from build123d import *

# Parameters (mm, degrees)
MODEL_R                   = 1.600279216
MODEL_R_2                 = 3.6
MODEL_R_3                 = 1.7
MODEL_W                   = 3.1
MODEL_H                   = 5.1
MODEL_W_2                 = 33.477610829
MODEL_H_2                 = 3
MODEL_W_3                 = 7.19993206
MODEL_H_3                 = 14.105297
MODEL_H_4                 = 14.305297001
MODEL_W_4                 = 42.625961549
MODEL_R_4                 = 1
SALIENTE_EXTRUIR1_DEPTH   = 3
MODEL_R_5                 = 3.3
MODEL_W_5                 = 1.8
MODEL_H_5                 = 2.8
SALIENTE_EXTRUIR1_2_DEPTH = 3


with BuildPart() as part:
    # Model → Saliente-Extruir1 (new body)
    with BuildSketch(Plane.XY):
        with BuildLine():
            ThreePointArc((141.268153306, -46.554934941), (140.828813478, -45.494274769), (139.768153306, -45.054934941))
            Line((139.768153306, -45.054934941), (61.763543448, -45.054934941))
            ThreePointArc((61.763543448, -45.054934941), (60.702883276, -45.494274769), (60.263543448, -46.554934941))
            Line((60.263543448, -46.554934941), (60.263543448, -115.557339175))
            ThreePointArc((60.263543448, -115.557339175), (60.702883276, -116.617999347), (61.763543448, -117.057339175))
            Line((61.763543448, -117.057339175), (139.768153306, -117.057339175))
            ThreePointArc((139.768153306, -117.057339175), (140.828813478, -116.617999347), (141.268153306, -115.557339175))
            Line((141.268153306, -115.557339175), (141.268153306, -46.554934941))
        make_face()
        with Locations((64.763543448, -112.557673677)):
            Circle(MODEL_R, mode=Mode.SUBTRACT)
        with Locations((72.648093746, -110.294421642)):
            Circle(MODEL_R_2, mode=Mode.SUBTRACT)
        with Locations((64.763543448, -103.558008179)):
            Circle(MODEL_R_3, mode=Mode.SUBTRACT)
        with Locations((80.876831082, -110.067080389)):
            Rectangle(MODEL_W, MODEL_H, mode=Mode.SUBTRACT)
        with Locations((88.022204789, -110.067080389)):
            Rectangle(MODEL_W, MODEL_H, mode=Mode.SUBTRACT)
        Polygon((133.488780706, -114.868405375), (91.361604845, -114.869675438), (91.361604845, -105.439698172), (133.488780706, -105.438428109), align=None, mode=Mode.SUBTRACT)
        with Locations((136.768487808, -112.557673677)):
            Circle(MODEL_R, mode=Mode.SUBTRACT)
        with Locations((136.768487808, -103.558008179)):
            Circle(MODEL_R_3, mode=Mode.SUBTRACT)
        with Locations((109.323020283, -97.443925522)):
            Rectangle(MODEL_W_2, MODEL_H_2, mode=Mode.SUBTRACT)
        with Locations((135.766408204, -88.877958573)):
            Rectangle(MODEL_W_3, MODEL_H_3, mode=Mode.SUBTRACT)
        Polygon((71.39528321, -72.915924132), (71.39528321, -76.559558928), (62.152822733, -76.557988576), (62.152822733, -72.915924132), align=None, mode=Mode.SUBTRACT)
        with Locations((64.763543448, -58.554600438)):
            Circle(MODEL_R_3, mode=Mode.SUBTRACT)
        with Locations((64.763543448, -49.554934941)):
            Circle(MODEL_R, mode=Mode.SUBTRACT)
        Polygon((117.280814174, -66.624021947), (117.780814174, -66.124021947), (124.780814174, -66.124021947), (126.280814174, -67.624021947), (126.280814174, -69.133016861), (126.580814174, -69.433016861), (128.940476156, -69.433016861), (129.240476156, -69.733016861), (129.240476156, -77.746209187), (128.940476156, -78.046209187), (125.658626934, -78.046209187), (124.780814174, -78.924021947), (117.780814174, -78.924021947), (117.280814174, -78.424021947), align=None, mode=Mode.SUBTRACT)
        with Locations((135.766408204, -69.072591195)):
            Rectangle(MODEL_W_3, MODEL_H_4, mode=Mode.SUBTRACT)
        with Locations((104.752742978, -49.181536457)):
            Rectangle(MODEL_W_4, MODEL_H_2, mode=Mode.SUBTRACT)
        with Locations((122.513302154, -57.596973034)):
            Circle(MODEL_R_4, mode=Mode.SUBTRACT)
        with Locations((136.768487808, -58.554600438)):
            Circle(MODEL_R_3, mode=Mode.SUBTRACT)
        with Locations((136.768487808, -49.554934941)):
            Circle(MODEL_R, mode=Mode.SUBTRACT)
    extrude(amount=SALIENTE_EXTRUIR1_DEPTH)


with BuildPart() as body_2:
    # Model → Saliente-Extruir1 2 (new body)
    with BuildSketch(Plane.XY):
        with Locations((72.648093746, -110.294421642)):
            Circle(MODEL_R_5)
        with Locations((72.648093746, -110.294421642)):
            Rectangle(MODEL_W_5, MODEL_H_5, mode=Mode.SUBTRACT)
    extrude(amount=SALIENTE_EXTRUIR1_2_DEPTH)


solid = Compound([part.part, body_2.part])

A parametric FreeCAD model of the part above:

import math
import FreeCAD as App
import Part
import Sketcher

V = App.Vector


def add_polygon(sketch, points):
    """Adds a closed chain of lines whose ends are joined by coincident constraints."""
    first, n = sketch.GeometryCount, len(points)
    for a, b in zip(points, points[1:] + points[:1]):
        sketch.addGeometry(Part.LineSegment(App.Vector(*a, 0), App.Vector(*b, 0)), False)
    for i in range(n):
        sketch.addConstraint(Sketcher.Constraint("Coincident", first + i, 2, first + (i + 1) % n, 1))

doc = App.newDocument("Part")
params = doc.addObject("Spreadsheet::Sheet", "Params")
for row, (alias, value) in enumerate([
    ("sketch1_diameter", "2 mm"),
    ("sketch1_diameter2", "7.2 mm"),
    ("sketch1_diameter3", "3.4 mm"),
    ("sketch1_radius", "1.5 mm"),
    ("sketch1_width", "7 mm"),
    ("pad1_length", "3 mm"),
    ("sketch2_diameter", "6.6 mm"),
    ("sketch2_width", "1.8 mm"),
    ("sketch2_height", "2.8 mm"),
    ("pad2_length", "3 mm"),
], start=1):
    params.set(f"A{row}", alias)
    params.set(f"B{row}", "=" + value)
    params.setAlias(f"B{row}", alias)

body = doc.addObject("PartDesign::Body", "Body")

# Sketch on XY plane
sketch1 = doc.addObject("Sketcher::SketchObject", "Sketch")
body.addObject(sketch1)
sketch1.AttachmentSupport = (doc.XY_Plane, [""])
sketch1.MapMode = "FlatFace"
sketch1.addGeometry(Part.ArcOfCircle(Part.Circle(V(139.77, -46.55, 0), V(0, 0, 1), 1.5), math.radians(0), math.radians(90)), False)  # 0
sketch1.addGeometry(Part.LineSegment(V(139.77, -45.05, 0), V(61.76, -45.05, 0)), False)  # 1
sketch1.addGeometry(Part.ArcOfCircle(Part.Circle(V(61.76, -46.55, 0), V(0, 0, 1), 1.5), math.radians(90), math.radians(180)), False)  # 2
sketch1.addGeometry(Part.LineSegment(V(60.26, -46.55, 0), V(60.26, -115.56, 0)), False)  # 3
sketch1.addGeometry(Part.ArcOfCircle(Part.Circle(V(61.76, -115.56, 0), V(0, 0, 1), 1.5), math.radians(180), math.radians(270)), False)  # 4
sketch1.addGeometry(Part.LineSegment(V(61.76, -117.06, 0), V(139.77, -117.06, 0)), False)  # 5
sketch1.addGeometry(Part.ArcOfCircle(Part.Circle(V(139.77, -115.56, 0), V(0, 0, 1), 1.5), math.radians(-90), math.radians(0)), False)  # 6
sketch1.addGeometry(Part.LineSegment(V(141.27, -115.56, 0), V(141.27, -46.55, 0)), False)  # 7
sketch1.addGeometry(Part.Circle(V(64.76, -112.56, 0), V(0, 0, 1), 1.6), False)  # 8
sketch1.addGeometry(Part.Circle(V(72.65, -110.29, 0), V(0, 0, 1), 3.6), False)  # 9
add_polygon(sketch1, [(82.43, -112.62), (79.33, -112.62), (79.33, -107.52), (82.43, -107.52)])  # lines 10-13
sketch1.addGeometry(Part.Circle(V(64.76, -103.56, 0), V(0, 0, 1), 1.7), False)  # 14
add_polygon(sketch1, [(89.57, -112.62), (86.47, -112.62), (86.47, -107.52), (89.57, -107.52)])  # lines 15-18
add_polygon(sketch1, [(133.49, -105.44), (133.49, -114.87), (91.36, -114.87), (91.36, -105.44)])  # lines 19-22
sketch1.addGeometry(Part.Circle(V(136.77, -112.56, 0), V(0, 0, 1), 1.6), False)  # 23
sketch1.addGeometry(Part.Circle(V(136.77, -103.56, 0), V(0, 0, 1), 1.7), False)  # 24
add_polygon(sketch1, [(126.06, -98.94), (92.58, -98.94), (92.58, -95.94), (126.06, -95.94)])  # lines 25-28
add_polygon(sketch1, [(139.37, -95.93), (132.17, -95.93), (132.17, -81.83), (139.37, -81.83)])  # lines 29-32
add_polygon(sketch1, [(62.15, -72.92), (71.4, -72.92), (71.4, -76.56), (62.15, -76.56)])  # lines 33-36
sketch1.addGeometry(Part.Circle(V(64.76, -58.55, 0), V(0, 0, 1), 1.7), False)  # 37
sketch1.addGeometry(Part.Circle(V(64.76, -49.55, 0), V(0, 0, 1), 1.6), False)  # 38
add_polygon(sketch1, [(117.28, -78.42), (117.28, -66.62), (117.78, -66.12), (124.78, -66.12), (126.28, -67.62), (126.28, -69.13), (126.58, -69.43), (128.94, -69.43), (129.24, -69.73), (129.24, -77.75), (128.94, -78.05), (125.66, -78.05), (124.78, -78.92), (117.78, -78.92)])  # lines 39-52
add_polygon(sketch1, [(139.37, -76.23), (132.17, -76.23), (132.17, -61.92), (139.37, -61.92)])  # lines 53-56
add_polygon(sketch1, [(126.07, -50.68), (83.44, -50.68), (83.44, -47.68), (126.07, -47.68)])  # lines 57-60
sketch1.addGeometry(Part.Circle(V(122.51, -57.6, 0), V(0, 0, 1), 1), False)  # 61
sketch1.addGeometry(Part.Circle(V(136.77, -58.55, 0), V(0, 0, 1), 1.7), False)  # 62
sketch1.addGeometry(Part.Circle(V(136.77, -49.55, 0), V(0, 0, 1), 1.6), False)  # 63
sketch1.addConstraint([
    Sketcher.Constraint("Tangent", 0, 2, 1, 1),
    Sketcher.Constraint("Tangent", 1, 2, 2, 1),
    Sketcher.Constraint("Tangent", 2, 2, 3, 1),
    Sketcher.Constraint("Tangent", 3, 2, 4, 1),
    Sketcher.Constraint("Tangent", 4, 2, 5, 1),
    Sketcher.Constraint("Tangent", 5, 2, 6, 1),
    Sketcher.Constraint("Tangent", 6, 2, 7, 1),
    Sketcher.Constraint("Tangent", 7, 2, 0, 1),
    Sketcher.Constraint("Horizontal", 1),
    Sketcher.Constraint("Vertical", 3),
    Sketcher.Constraint("Horizontal", 5),
    Sketcher.Constraint("Vertical", 7),
    Sketcher.Constraint("Horizontal", 10),
    Sketcher.Constraint("Vertical", 11),
    Sketcher.Constraint("Horizontal", 12),
    Sketcher.Constraint("Vertical", 13),
    Sketcher.Constraint("Horizontal", 15),
    Sketcher.Constraint("Vertical", 16),
    Sketcher.Constraint("Horizontal", 17),
    Sketcher.Constraint("Vertical", 18),
    Sketcher.Constraint("Vertical", 19),
    Sketcher.Constraint("Vertical", 21),
    Sketcher.Constraint("Horizontal", 25),
    Sketcher.Constraint("Vertical", 26),
    Sketcher.Constraint("Horizontal", 27),
    Sketcher.Constraint("Vertical", 28),
    Sketcher.Constraint("Horizontal", 29),
    Sketcher.Constraint("Vertical", 30),
    Sketcher.Constraint("Horizontal", 31),
    Sketcher.Constraint("Vertical", 32),
    Sketcher.Constraint("Horizontal", 33),
    Sketcher.Constraint("Vertical", 34),
    Sketcher.Constraint("Vertical", 36),
    Sketcher.Constraint("Vertical", 39),
    Sketcher.Constraint("Horizontal", 41),
    Sketcher.Constraint("Vertical", 43),
    Sketcher.Constraint("Horizontal", 45),
    Sketcher.Constraint("Vertical", 47),
    Sketcher.Constraint("Horizontal", 49),
    Sketcher.Constraint("Horizontal", 51),
    Sketcher.Constraint("Horizontal", 53),
    Sketcher.Constraint("Vertical", 54),
    Sketcher.Constraint("Horizontal", 55),
    Sketcher.Constraint("Vertical", 56),
    Sketcher.Constraint("Horizontal", 57),
    Sketcher.Constraint("Vertical", 58),
    Sketcher.Constraint("Horizontal", 59),
    Sketcher.Constraint("Vertical", 60),
    Sketcher.Constraint("Equal", 0, 2),
    Sketcher.Constraint("Equal", 2, 4),
    Sketcher.Constraint("Equal", 4, 6),
    Sketcher.Constraint("Equal", 8, 23),
    Sketcher.Constraint("Equal", 14, 24),
    Sketcher.Constraint("Equal", 24, 37),
    Sketcher.Constraint("Equal", 23, 38),
    Sketcher.Constraint("Equal", 37, 62),
    Sketcher.Constraint("Equal", 38, 63),
    Sketcher.Constraint("Parallel", 20, 22),
    Sketcher.Constraint("Perpendicular", 40, 42),
    Sketcher.Constraint("Parallel", 42, 44),
    Sketcher.Constraint("Parallel", 44, 46),
    Sketcher.Constraint("Perpendicular", 46, 48),
    Sketcher.Constraint("Parallel", 48, 50),
    Sketcher.Constraint("Perpendicular", 50, 52),
    Sketcher.Constraint("Horizontal", 8, 3, 23, 3),
    Sketcher.Constraint("Horizontal", 14, 3, 24, 3),
    Sketcher.Constraint("Horizontal", 37, 3, 62, 3),
    Sketcher.Constraint("Horizontal", 38, 3, 63, 3),
    Sketcher.Constraint("Horizontal", 13, 2, 15, 2),
    Sketcher.Constraint("Horizontal", 12, 2, 16, 2),
    Sketcher.Constraint("Vertical", 8, 3, 14, 3),
    Sketcher.Constraint("Vertical", 23, 3, 24, 3),
    Sketcher.Constraint("Vertical", 14, 3, 37, 3),
    Sketcher.Constraint("Vertical", 37, 3, 38, 3),
    Sketcher.Constraint("Vertical", 24, 3, 62, 3),
    Sketcher.Constraint("Vertical", 62, 3, 63, 3),
    Sketcher.Constraint("Vertical", 45, 2, 48, 2),
    Sketcher.Constraint("Vertical", 41, 2, 50, 2),
    Sketcher.Constraint("Vertical", 40, 2, 51, 2),
    Sketcher.Constraint("Vertical", 30, 2, 53, 2),
    Sketcher.Constraint("Vertical", 32, 2, 55, 2),
    Sketcher.Constraint("Equal", 12, 15),
    Sketcher.Constraint("Equal", 28, 58),
    Sketcher.Constraint("Equal", 44, 46),
    Sketcher.Constraint("Equal", 46, 48),
    Sketcher.Constraint("Diameter", 61, 2.0),
    Sketcher.Constraint("Diameter", 9, 7.2),
    Sketcher.Constraint("Diameter", 14, 3.4),
    Sketcher.Constraint("Radius", 0, 1.5),
    Sketcher.Constraint("DistanceX", 41, 1, 41, 2, 7.0),
    Sketcher.Constraint("DistanceY", 26, 1, 26, 2, 3.0),
    Sketcher.Constraint("DistanceX", 10, 2, 10, 1, 3.1),
    Sketcher.Constraint("DistanceY", 11, 1, 11, 2, 5.1),
    Sketcher.Constraint("DistanceY", 39, 1, 39, 2, 11.8),
    Sketcher.Constraint("Diameter", 8, 3.200558),
    Sketcher.Constraint("DistanceX", 1, 2, 1, 1, 78.00461),
    Sketcher.Constraint("DistanceX", 25, 2, 25, 1, 33.477611),
    Sketcher.Constraint("DistanceX", 33, 1, 33, 2, 9.24246),
    Sketcher.Constraint("DistanceX", 45, 1, 45, 2, 2.359662),
    Sketcher.Constraint("DistanceX", 49, 2, 49, 1, 3.281849),
    Sketcher.Constraint("DistanceX", 57, 2, 57, 1, 42.625962),
    Sketcher.Constraint("DistanceY", 37, 3, -1, 1, 58.5546),
    Sketcher.Constraint("DistanceY", 21, 2, -1, 1, 105.439698),
    Sketcher.Constraint("Distance", 42, 2.12132),
    Sketcher.Constraint("DistanceX", 29, 2, 29, 1, 7.199932),
    Sketcher.Constraint("DistanceY", 3, 2, 3, 1, 69.002404),
    Sketcher.Constraint("DistanceY", 19, 2, 19, 1, 9.429977),
    Sketcher.Constraint("DistanceY", 30, 1, 30, 2, 14.105297),
    Sketcher.Constraint("DistanceY", 34, 2, 34, 1, 3.643635),
    Sketcher.Constraint("DistanceY", 36, 1, 36, 2, 3.642064),
    Sketcher.Constraint("DistanceY", 43, 2, 43, 1, 1.508995),
    Sketcher.Constraint("DistanceY", 47, 2, 47, 1, 8.013192),
    Sketcher.Constraint("DistanceY", 54, 1, 54, 2, 14.305297),
    Sketcher.Constraint("DistanceY", 4, 3, -1, 1, 115.557339),
    Sketcher.Constraint("DistanceY", 9, 3, -1, 1, 110.294422),
    Sketcher.Constraint("DistanceY", 14, 3, -1, 1, 103.558008),
    Sketcher.Constraint("DistanceX", -1, 1, 10, 2, 79.326831),
    Sketcher.Constraint("DistanceY", 10, 2, -1, 1, 112.61708),
    Sketcher.Constraint("DistanceX", -1, 1, 19, 2, 133.488781),
    Sketcher.Constraint("DistanceY", 22, 2, -1, 1, 105.438428),
    Sketcher.Constraint("DistanceY", 30, 2, -1, 1, 81.82531),
    Sketcher.Constraint("DistanceY", 34, 2, -1, 1, 76.559559),
    Sketcher.Constraint("DistanceY", 39, 2, -1, 1, 66.624022),
    Sketcher.Constraint("DistanceY", 40, 2, -1, 1, 66.124022),
    Sketcher.Constraint("DistanceY", 53, 2, -1, 1, 76.22524),
    Sketcher.Constraint("Distance", 20, 42.127176),
    Sketcher.Constraint("DistanceX", -1, 1, 0, 3, 139.768153),
    Sketcher.Constraint("DistanceX", -1, 1, 8, 3, 64.763543),
    Sketcher.Constraint("DistanceY", 8, 3, -1, 1, 112.557674),
    Sketcher.Constraint("DistanceX", -1, 1, 9, 3, 72.648094),
    Sketcher.Constraint("DistanceX", -1, 1, 23, 3, 136.768488),
    Sketcher.Constraint("DistanceY", 38, 3, -1, 1, 49.554935),
    Sketcher.Constraint("DistanceX", -1, 1, 61, 3, 122.513302),
    Sketcher.Constraint("DistanceY", 61, 3, -1, 1, 57.596973),
    Sketcher.Constraint("DistanceX", -1, 1, 15, 2, 86.472205),
    Sketcher.Constraint("DistanceX", -1, 1, 25, 2, 92.584215),
    Sketcher.Constraint("DistanceY", 25, 2, -1, 1, 98.943926),
    Sketcher.Constraint("DistanceX", -1, 1, 29, 2, 132.166442),
    Sketcher.Constraint("DistanceX", -1, 1, 33, 2, 71.395283),
    Sketcher.Constraint("DistanceX", -1, 1, 39, 2, 117.280814),
    Sketcher.Constraint("DistanceX", -1, 1, 57, 2, 83.439762),
    Sketcher.Constraint("DistanceY", 57, 2, -1, 1, 50.681536),
])
sketch1.setExpression("Constraints[131]", "Params.sketch1_diameter")
sketch1.setExpression("Constraints[132]", "Params.sketch1_diameter2")
sketch1.setExpression("Constraints[133]", "Params.sketch1_diameter3")
sketch1.setExpression("Constraints[134]", "Params.sketch1_radius")
sketch1.setExpression("Constraints[135]", "Params.sketch1_width")
pad1 = doc.addObject("PartDesign::Pad", "Pad")
body.addObject(pad1)
pad1.Profile = sketch1
pad1.setExpression("Length", "Params.pad1_length")
body2 = doc.addObject("PartDesign::Body", "Body001")

# Sketch on XY plane
sketch2 = doc.addObject("Sketcher::SketchObject", "Sketch001")
body2.addObject(sketch2)
sketch2.AttachmentSupport = (doc.getObject("XY_Plane001"), [""])
sketch2.MapMode = "FlatFace"
sketch2.addGeometry(Part.Circle(V(72.6, -110.3, 0), V(0, 0, 1), 3.3), False)  # 0
add_polygon(sketch2, [(73.5, -111.7), (71.7, -111.7), (71.7, -108.9), (73.5, -108.9)])  # lines 1-4
sketch2.addConstraint([
    Sketcher.Constraint("Horizontal", 1),
    Sketcher.Constraint("Vertical", 2),
    Sketcher.Constraint("Horizontal", 3),
    Sketcher.Constraint("Vertical", 4),
    Sketcher.Constraint("Diameter", 0, 6.6),
    Sketcher.Constraint("DistanceX", 1, 2, 1, 1, 1.8),
    Sketcher.Constraint("DistanceY", 2, 1, 2, 2, 2.8),
    Sketcher.Constraint("DistanceX", 1, 2, 0, 3, 0.9),
    Sketcher.Constraint("DistanceY", 1, 2, 0, 3, 1.4),
    Sketcher.Constraint("DistanceY", 0, 3, -1, 1, 110.294422),
    Sketcher.Constraint("DistanceX", -1, 1, 0, 3, 72.648094),
])
sketch2.setExpression("Constraints[8]", "Params.sketch2_diameter")
sketch2.setExpression("Constraints[9]", "Params.sketch2_width")
sketch2.setExpression("Constraints[10]", "Params.sketch2_height")
pad2 = doc.addObject("PartDesign::Pad", "Pad001")
body2.addObject(pad2)
pad2.Profile = sketch2
pad2.setExpression("Length", "Params.pad2_length")

doc.recompute()
